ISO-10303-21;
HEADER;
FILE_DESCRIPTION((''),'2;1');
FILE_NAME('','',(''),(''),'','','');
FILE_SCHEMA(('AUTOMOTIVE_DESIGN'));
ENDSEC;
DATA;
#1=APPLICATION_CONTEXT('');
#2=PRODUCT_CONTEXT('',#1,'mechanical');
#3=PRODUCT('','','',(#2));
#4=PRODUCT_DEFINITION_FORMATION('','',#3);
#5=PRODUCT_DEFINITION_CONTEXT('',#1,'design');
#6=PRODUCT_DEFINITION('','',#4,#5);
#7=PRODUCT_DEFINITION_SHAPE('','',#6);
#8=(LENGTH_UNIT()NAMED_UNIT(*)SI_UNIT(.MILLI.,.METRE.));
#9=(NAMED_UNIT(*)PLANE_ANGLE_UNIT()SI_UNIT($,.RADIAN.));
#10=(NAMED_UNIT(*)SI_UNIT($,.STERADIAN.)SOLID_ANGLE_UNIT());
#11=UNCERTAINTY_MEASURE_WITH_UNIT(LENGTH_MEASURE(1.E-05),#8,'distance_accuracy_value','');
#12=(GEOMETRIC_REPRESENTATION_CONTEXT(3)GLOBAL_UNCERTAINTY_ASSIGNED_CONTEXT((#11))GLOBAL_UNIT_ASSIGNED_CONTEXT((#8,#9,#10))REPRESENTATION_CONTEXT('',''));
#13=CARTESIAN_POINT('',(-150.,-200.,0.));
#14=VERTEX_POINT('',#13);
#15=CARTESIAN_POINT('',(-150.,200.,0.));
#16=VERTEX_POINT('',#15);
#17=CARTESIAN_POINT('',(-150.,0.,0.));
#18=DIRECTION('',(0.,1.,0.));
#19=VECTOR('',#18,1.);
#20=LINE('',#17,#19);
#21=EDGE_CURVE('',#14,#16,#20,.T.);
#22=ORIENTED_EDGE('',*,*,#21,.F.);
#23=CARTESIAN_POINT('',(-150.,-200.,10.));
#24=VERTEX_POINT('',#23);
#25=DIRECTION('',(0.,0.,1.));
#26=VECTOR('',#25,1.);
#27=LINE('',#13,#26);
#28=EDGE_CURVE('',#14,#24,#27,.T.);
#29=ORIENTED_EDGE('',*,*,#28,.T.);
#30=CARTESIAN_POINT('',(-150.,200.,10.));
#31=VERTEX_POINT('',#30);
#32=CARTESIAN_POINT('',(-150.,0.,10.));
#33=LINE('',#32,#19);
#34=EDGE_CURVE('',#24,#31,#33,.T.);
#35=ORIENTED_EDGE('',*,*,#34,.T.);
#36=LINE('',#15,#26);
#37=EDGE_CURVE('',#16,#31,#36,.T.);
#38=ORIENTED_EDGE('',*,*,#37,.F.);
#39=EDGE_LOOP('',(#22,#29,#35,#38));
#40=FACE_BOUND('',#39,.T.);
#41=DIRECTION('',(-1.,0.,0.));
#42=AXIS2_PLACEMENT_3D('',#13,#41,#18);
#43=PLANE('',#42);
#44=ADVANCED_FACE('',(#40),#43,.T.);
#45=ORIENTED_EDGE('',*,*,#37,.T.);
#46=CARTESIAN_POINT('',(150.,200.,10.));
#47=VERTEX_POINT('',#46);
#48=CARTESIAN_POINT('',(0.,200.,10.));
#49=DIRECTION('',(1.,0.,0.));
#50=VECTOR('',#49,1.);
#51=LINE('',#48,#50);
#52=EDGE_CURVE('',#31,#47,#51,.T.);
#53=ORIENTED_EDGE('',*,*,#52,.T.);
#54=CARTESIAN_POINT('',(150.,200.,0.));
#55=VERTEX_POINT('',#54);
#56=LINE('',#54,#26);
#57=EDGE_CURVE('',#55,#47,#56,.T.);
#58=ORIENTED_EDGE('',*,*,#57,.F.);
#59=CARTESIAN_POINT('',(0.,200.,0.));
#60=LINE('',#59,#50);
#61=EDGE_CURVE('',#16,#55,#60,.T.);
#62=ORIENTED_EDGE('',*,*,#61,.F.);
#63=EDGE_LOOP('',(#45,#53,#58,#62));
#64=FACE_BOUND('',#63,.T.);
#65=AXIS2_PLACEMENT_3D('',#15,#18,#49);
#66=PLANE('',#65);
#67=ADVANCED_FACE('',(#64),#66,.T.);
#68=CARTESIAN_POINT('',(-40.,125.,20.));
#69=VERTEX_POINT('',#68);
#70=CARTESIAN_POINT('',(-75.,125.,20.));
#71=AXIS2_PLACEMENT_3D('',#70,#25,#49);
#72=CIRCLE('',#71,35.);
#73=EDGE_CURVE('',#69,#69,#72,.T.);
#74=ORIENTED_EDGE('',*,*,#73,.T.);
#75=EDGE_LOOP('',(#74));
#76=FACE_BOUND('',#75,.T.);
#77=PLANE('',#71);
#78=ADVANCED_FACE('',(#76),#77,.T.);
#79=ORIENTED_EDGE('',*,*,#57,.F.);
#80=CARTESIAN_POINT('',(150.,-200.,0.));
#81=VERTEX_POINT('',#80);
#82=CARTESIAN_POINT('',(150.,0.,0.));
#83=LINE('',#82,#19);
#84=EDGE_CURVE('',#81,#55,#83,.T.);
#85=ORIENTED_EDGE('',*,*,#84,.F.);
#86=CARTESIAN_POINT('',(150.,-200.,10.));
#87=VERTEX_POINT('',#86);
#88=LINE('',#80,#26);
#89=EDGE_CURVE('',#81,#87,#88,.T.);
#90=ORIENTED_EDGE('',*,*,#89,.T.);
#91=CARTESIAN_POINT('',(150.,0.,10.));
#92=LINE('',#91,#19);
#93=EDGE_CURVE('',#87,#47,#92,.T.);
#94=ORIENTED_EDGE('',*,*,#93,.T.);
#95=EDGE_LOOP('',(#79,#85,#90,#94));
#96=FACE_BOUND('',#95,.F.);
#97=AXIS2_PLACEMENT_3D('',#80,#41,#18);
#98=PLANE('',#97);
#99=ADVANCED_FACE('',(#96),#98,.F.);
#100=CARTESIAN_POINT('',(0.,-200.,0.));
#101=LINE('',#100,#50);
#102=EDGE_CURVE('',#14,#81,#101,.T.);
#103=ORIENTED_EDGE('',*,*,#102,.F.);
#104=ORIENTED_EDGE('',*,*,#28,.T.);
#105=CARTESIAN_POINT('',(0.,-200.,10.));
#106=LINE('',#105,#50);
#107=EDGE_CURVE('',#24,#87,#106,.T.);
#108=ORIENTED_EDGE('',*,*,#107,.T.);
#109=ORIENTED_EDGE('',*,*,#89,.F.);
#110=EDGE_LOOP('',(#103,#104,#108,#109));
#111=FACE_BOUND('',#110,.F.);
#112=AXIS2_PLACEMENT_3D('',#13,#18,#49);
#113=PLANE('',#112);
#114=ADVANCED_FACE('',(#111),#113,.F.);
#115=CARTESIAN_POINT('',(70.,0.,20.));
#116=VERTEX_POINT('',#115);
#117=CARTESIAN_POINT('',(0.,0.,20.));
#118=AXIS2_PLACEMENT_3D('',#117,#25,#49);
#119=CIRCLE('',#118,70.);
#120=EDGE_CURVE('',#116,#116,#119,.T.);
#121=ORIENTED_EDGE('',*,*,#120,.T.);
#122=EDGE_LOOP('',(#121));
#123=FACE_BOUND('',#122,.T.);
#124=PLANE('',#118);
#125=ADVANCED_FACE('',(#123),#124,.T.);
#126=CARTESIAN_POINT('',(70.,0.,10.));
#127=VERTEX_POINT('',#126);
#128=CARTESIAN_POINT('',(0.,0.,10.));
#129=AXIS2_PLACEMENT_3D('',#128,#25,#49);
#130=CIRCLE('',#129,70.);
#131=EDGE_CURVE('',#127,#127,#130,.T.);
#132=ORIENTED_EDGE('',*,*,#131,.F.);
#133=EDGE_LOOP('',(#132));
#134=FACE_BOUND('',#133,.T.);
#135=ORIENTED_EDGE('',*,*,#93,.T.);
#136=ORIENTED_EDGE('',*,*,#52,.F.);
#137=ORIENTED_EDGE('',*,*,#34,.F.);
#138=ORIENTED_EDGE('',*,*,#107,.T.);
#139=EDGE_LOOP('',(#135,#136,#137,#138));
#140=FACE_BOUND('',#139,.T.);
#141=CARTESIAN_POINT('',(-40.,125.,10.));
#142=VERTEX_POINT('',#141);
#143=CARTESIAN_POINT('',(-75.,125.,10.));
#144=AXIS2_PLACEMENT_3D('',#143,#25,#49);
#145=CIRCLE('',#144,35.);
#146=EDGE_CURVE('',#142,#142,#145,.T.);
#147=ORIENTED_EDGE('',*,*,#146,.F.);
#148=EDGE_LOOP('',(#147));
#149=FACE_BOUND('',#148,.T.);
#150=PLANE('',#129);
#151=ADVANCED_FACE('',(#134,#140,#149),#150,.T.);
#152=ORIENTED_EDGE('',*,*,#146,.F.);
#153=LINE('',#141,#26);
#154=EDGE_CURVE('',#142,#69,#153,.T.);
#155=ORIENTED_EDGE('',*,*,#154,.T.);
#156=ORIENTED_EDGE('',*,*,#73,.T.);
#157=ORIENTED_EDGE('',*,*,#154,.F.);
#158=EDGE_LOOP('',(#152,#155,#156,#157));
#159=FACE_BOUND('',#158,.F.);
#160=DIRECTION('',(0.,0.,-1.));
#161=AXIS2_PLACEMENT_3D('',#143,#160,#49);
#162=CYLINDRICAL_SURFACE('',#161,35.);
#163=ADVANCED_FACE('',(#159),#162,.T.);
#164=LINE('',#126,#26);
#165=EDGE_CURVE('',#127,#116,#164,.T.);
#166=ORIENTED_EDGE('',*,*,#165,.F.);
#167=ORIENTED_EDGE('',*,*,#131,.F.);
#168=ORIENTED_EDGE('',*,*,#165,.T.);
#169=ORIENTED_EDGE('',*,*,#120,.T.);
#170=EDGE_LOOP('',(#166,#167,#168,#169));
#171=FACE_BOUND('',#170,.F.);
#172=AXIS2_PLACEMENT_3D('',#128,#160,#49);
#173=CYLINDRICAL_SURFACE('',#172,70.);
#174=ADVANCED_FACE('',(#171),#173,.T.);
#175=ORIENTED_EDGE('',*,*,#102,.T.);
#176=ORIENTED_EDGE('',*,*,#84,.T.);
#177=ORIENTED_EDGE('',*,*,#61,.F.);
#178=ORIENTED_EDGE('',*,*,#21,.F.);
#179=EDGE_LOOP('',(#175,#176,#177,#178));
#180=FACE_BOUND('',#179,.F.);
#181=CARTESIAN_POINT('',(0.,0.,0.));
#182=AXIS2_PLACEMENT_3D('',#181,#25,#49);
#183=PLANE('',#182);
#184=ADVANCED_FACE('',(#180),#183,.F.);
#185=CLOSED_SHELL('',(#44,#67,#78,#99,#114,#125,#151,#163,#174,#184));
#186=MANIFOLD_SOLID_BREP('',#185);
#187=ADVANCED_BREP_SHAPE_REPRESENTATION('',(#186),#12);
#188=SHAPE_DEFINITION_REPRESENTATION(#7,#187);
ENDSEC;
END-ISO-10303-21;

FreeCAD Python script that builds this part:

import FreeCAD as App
import Part
import Sketcher

V = App.Vector


def add_polygon(sketch, points):
    """Adds a closed chain of lines whose ends are joined by coincident constraints."""
    first, n = sketch.GeometryCount, len(points)
    for a, b in zip(points, points[1:] + points[:1]):
        sketch.addGeometry(Part.LineSegment(App.Vector(*a, 0), App.Vector(*b, 0)), False)
    for i in range(n):
        sketch.addConstraint(Sketcher.Constraint("Coincident", first + i, 2, first + (i + 1) % n, 1))

doc = App.newDocument("Part")
body = doc.addObject("PartDesign::Body", "Body")

# Sketch on XY plane
sketch1 = body.newObject("Sketcher::SketchObject", "Sketch")
sketch1.AttachmentSupport = (doc.getObject("XY_Plane"), [""])
sketch1.MapMode = "FlatFace"
add_polygon(sketch1, [(-150, 200), (-150, -200), (150, -200), (150, 200)])  # lines 0-3
sketch1.addConstraint([
    Sketcher.Constraint("Vertical", 0),
    Sketcher.Constraint("Horizontal", 1),
    Sketcher.Constraint("Vertical", 2),
    Sketcher.Constraint("Horizontal", 3),
    Sketcher.Constraint("Symmetric", 0, 2, 2, 2, -1, 1),
    Sketcher.Constraint("DistanceX", 1, 1, 1, 2, 300.0),
    Sketcher.Constraint("DistanceY", 0, 2, 0, 1, 400.0),
])
pad1 = body.newObject("PartDesign::Pad", "Pad")
pad1.Profile = sketch1
pad1.Length = 10

# Sketch on XY plane
sketch2 = body.newObject("Sketcher::SketchObject", "Sketch001")
sketch2.AttachmentSupport = (doc.getObject("XY_Plane"), [""])
sketch2.MapMode = "FlatFace"
sketch2.AttachmentOffset = App.Placement(V(0, 0, 10), App.Rotation())
sketch2.addGeometry(Part.Circle(V(-75, 125, 0), V(0, 0, 1), 35), False)
sketch2.addConstraint([
    Sketcher.Constraint("Diameter", 0, 70.0),
    Sketcher.Constraint("DistanceX", 0, 3, -1, 1, 75.0),
    Sketcher.Constraint("DistanceY", -1, 1, 0, 3, 125.0),
])
pad2 = body.newObject("PartDesign::Pad", "Pad001")
pad2.Profile = sketch2
pad2.Length = 10

# Sketch on XY plane
sketch3 = body.newObject("Sketcher::SketchObject", "Sketch002")
sketch3.AttachmentSupport = (doc.getObject("XY_Plane"), [""])
sketch3.MapMode = "FlatFace"
sketch3.AttachmentOffset = App.Placement(V(0, 0, 10), App.Rotation())
sketch3.addGeometry(Part.Circle(V(0, 0, 0), V(0, 0, 1), 70), False)
sketch3.addConstraint([
    Sketcher.Constraint("Coincident", 0, 3, -1, 1),
    Sketcher.Constraint("Diameter", 0, 140.0),
])
pad3 = body.newObject("PartDesign::Pad", "Pad002")
pad3.Profile = sketch3
pad3.Length = 10

doc.recompute()
